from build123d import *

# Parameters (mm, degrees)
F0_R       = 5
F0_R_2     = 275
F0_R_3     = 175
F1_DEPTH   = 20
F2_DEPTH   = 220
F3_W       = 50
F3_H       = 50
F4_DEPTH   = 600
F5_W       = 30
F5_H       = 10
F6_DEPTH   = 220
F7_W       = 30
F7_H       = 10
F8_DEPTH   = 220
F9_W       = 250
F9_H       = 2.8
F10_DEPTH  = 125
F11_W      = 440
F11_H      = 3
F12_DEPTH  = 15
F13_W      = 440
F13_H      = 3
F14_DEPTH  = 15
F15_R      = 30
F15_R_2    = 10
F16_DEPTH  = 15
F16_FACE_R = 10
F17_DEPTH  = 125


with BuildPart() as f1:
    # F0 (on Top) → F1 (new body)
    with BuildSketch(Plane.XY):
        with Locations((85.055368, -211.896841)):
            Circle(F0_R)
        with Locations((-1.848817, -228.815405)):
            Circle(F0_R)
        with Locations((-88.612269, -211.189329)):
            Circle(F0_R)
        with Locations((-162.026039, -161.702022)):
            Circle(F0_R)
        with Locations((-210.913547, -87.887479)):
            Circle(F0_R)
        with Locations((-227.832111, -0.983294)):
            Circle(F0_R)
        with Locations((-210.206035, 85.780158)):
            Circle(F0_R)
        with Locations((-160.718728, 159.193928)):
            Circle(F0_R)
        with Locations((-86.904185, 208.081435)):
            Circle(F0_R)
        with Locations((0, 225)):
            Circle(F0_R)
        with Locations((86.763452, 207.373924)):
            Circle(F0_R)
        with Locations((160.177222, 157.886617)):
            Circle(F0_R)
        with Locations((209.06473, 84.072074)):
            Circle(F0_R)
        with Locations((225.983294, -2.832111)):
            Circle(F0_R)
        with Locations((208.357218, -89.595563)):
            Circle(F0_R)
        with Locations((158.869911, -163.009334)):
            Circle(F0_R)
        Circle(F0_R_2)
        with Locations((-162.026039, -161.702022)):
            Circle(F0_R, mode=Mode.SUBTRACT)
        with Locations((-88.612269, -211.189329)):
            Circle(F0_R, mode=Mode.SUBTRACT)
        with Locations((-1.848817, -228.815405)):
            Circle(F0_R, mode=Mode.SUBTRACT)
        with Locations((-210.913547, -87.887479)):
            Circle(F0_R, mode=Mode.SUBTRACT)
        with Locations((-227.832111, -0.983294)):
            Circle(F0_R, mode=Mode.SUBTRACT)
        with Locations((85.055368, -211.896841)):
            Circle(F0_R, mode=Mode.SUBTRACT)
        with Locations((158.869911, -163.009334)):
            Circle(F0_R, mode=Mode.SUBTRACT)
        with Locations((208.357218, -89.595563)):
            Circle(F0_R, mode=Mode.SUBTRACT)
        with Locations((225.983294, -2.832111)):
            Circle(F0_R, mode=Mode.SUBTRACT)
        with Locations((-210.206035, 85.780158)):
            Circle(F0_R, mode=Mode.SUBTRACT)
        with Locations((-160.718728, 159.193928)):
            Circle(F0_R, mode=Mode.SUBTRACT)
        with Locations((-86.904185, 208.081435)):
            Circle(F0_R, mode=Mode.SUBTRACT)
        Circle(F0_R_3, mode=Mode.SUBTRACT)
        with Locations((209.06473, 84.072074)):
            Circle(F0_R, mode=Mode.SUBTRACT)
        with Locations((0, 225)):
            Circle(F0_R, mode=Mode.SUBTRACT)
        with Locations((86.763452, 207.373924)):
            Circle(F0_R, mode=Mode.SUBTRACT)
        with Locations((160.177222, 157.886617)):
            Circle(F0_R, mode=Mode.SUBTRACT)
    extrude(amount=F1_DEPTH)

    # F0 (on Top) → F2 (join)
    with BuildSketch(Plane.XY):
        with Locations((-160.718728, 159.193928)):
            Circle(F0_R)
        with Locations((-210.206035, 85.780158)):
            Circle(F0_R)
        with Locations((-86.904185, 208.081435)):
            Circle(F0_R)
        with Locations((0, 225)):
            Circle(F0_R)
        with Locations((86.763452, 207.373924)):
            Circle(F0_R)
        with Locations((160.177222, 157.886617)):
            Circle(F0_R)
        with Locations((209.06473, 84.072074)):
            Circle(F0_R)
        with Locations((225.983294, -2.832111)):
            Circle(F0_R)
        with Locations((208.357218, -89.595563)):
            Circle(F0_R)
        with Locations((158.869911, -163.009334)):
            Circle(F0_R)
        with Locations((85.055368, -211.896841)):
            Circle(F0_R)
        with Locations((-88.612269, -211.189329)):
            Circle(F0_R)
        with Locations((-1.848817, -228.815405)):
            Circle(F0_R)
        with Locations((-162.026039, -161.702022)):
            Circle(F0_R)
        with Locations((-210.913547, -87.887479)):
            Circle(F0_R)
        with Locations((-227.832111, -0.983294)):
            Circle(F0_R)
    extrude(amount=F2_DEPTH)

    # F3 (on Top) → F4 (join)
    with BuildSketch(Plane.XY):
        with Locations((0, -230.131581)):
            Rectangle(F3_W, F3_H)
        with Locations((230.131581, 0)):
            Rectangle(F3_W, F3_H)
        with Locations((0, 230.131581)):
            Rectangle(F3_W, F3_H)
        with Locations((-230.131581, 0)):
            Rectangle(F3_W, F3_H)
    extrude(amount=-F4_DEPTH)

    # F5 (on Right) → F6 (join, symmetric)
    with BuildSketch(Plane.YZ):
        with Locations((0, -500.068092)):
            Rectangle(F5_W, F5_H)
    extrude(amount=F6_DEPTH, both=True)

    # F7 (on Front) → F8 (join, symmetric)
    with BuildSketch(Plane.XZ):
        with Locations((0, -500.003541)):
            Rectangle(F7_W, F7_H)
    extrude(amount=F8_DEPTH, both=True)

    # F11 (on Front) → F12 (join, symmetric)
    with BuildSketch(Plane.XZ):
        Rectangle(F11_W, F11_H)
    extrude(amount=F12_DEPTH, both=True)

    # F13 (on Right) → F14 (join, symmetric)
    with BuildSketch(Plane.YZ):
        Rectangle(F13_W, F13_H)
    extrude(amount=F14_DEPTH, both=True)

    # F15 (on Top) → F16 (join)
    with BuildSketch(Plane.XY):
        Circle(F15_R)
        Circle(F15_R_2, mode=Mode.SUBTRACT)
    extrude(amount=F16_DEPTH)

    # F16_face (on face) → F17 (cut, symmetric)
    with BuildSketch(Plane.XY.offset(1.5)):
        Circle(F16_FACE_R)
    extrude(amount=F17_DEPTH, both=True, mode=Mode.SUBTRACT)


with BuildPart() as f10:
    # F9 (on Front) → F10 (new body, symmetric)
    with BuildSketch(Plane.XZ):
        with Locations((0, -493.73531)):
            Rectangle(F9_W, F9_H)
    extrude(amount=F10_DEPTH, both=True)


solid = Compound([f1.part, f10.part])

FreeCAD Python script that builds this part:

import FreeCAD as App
import Part
import Sketcher

V = App.Vector

doc = App.newDocument("Part")
params = doc.addObject("Spreadsheet::Sheet", "Params")
for row, (alias, value) in enumerate([
    ("sketch1_diameter", "550 mm"),
    ("sketch1_diameter2", "10 mm"),
    ("sketch1_diameter3", "350 mm"),
    ("pad1_length", "20 mm"),
    ("sketch2_diameter", "10 mm"),
    ("pad2_length", "220 mm"),
    ("sketch3_width", "50 mm"),
    ("pad3_length", "600 mm"),
    ("sketch4_width", "30 mm"),
    ("sketch4_height", "10 mm"),
    ("pad4_length", "440 mm"),
    ("sketch5_width", "30 mm"),
    ("sketch5_height", "10 mm"),
    ("pad5_length", "440 mm"),
    ("sketch6_width", "440 mm"),
    ("sketch6_height", "3 mm"),
    ("pad6_length", "30 mm"),
    ("sketch7_width", "440 mm"),
    ("sketch7_height", "3 mm"),
    ("pad7_length", "30 mm"),
    ("sketch8_diameter", "60 mm"),
    ("sketch8_diameter2", "20 mm"),
    ("pad8_length", "15 mm"),
    ("sketch9_diameter", "20 mm"),
    ("pocket1_length", "250 mm"),
    ("sketch10_width", "250 mm"),
    ("sketch10_height", "2.8 mm"),
    ("pad9_length", "250 mm"),
], start=1):
    params.set(f"A{row}", alias)
    params.set(f"B{row}", "=" + value)
    params.setAlias(f"B{row}", alias)

body = doc.addObject("PartDesign::Body", "Body")

sketch1 = body.newObject("Sketcher::SketchObject", "Sketch")
sketch1.AttachmentSupport = (doc.getObject("XY_Plane"), [""])
sketch1.MapMode = "FlatFace"
sketch1.addGeometry([
    Part.Circle(V(0, 0, 0), V(0, 0, 1), 275),
    Part.Circle(V(-162, -162, 0), V(0, 0, 1), 5),
    Part.Circle(V(-89, -211, 0), V(0, 0, 1), 5),
    Part.Circle(V(-2, -229, 0), V(0, 0, 1), 5),
    Part.Circle(V(-211, -88, 0), V(0, 0, 1), 5),
    Part.Circle(V(85, -212, 0), V(0, 0, 1), 5),
    Part.Circle(V(159, -163, 0), V(0, 0, 1), 5),
    Part.Circle(V(208, -90, 0), V(0, 0, 1), 5),
    Part.Circle(V(226, -3, 0), V(0, 0, 1), 5),
    Part.Circle(V(-228, -1, 0), V(0, 0, 1), 5),
    Part.Circle(V(-210, 86, 0), V(0, 0, 1), 5),
    Part.Circle(V(-161, 159, 0), V(0, 0, 1), 5),
    Part.Circle(V(-87, 208, 0), V(0, 0, 1), 5),
    Part.Circle(V(0, 0, 0), V(0, 0, 1), 175),
    Part.Circle(V(209, 84, 0), V(0, 0, 1), 5),
    Part.Circle(V(0, 225, 0), V(0, 0, 1), 5),
    Part.Circle(V(87, 207, 0), V(0, 0, 1), 5),
    Part.Circle(V(160, 158, 0), V(0, 0, 1), 5),
], False)
sketch1.addConstraint([
    Sketcher.Constraint("Coincident", 0, 3, -1, 1),
    Sketcher.Constraint("Coincident", 13, 3, -1, 1),
    Sketcher.Constraint("Equal", 1, 2),
    Sketcher.Constraint("Equal", 2, 3),
    Sketcher.Constraint("Equal", 3, 4),
    Sketcher.Constraint("Equal", 4, 5),
    Sketcher.Constraint("Equal", 5, 6),
    Sketcher.Constraint("Equal", 6, 7),
    Sketcher.Constraint("Equal", 7, 8),
    Sketcher.Constraint("Equal", 8, 9),
    Sketcher.Constraint("Equal", 9, 10),
    Sketcher.Constraint("Equal", 10, 11),
    Sketcher.Constraint("Equal", 11, 12),
    Sketcher.Constraint("Equal", 12, 14),
    Sketcher.Constraint("Equal", 14, 15),
    Sketcher.Constraint("Equal", 15, 16),
    Sketcher.Constraint("Equal", 16, 17),
    Sketcher.Constraint("PointOnObject", 15, 3, -2),
    Sketcher.Constraint("Diameter", 0, 550.0),
    Sketcher.Constraint("Diameter", 1, 10.0),
    Sketcher.Constraint("Diameter", 13, 350.0),
    Sketcher.Constraint("DistanceY", -1, 1, 15, 3, 225.0),
    Sketcher.Constraint("DistanceX", 1, 3, -1, 1, 162.026039),
    Sketcher.Constraint("DistanceY", 1, 3, -1, 1, 161.702022),
    Sketcher.Constraint("DistanceX", 2, 3, -1, 1, 88.612269),
    Sketcher.Constraint("DistanceY", 2, 3, -1, 1, 211.189329),
    Sketcher.Constraint("DistanceY", 4, 3, -1, 1, 87.887479),
    Sketcher.Constraint("DistanceX", -1, 1, 5, 3, 85.055368),
    Sketcher.Constraint("DistanceY", 5, 3, -1, 1, 211.896841),
    Sketcher.Constraint("DistanceX", -1, 1, 6, 3, 158.869911),
    Sketcher.Constraint("DistanceY", 8, 3, -1, 1, 2.832111),
    Sketcher.Constraint("DistanceX", 9, 3, -1, 1, 227.832111),
    Sketcher.Constraint("DistanceY", -1, 1, 10, 3, 85.780158),
    Sketcher.Constraint("DistanceX", 11, 3, -1, 1, 160.718728),
    Sketcher.Constraint("DistanceY", -1, 1, 11, 3, 159.193928),
    Sketcher.Constraint("DistanceX", -1, 1, 14, 3, 209.06473),
    Sketcher.Constraint("DistanceX", -1, 1, 16, 3, 86.763452),
    Sketcher.Constraint("DistanceX", -1, 1, 17, 3, 160.177222),
    Sketcher.Constraint("DistanceX", 2, 3, 3, 3, 86.763452),
    Sketcher.Constraint("DistanceX", 4, 3, 3, 3, 209.06473),
    Sketcher.Constraint("DistanceY", 3, 3, 6, 3, 65.806071),
    Sketcher.Constraint("DistanceY", 6, 3, 1, 3, 1.307312),
    Sketcher.Constraint("DistanceY", 6, 3, 7, 3, 73.413771),
    Sketcher.Constraint("DistanceX", 5, 3, 7, 3, 123.30185),
    Sketcher.Constraint("DistanceX", 3, 3, 8, 3, 227.832111),
    Sketcher.Constraint("DistanceY", 1, 3, 9, 3, 160.718728),
    Sketcher.Constraint("DistanceX", 4, 3, 10, 3, 0.707512),
    Sketcher.Constraint("DistanceX", 10, 3, 12, 3, 123.30185),
    Sketcher.Constraint("DistanceY", 9, 3, 12, 3, 209.064729),
    Sketcher.Constraint("DistanceY", 6, 3, 14, 3, 247.081408),
    Sketcher.Constraint("DistanceY", 16, 3, 12, 3, 0.707511),
    Sketcher.Constraint("DistanceY", 8, 3, 17, 3, 160.718728),
])
sketch1.setExpression("Constraints[18]", "Params.sketch1_diameter")
sketch1.setExpression("Constraints[19]", "Params.sketch1_diameter2")
sketch1.setExpression("Constraints[20]", "Params.sketch1_diameter3")
pad1 = body.newObject("PartDesign::Pad", "Pad")
pad1.Profile = sketch1
pad1.setExpression("Length", "Params.pad1_length")

sketch2 = body.newObject("Sketcher::SketchObject", "Sketch001")
sketch2.AttachmentSupport = (doc.getObject("XY_Plane"), [""])
sketch2.MapMode = "FlatFace"
sketch2.addGeometry([
    Part.Circle(V(-161, 159, 0), V(0, 0, 1), 5),
    Part.Circle(V(-210, 86, 0), V(0, 0, 1), 5),
    Part.Circle(V(-87, 208, 0), V(0, 0, 1), 5),
    Part.Circle(V(0, 225, 0), V(0, 0, 1), 5),
    Part.Circle(V(87, 207, 0), V(0, 0, 1), 5),
    Part.Circle(V(160, 158, 0), V(0, 0, 1), 5),
    Part.Circle(V(209, 84, 0), V(0, 0, 1), 5),
    Part.Circle(V(226, -3, 0), V(0, 0, 1), 5),
    Part.Circle(V(208, -90, 0), V(0, 0, 1), 5),
    Part.Circle(V(159, -163, 0), V(0, 0, 1), 5),
    Part.Circle(V(85, -212, 0), V(0, 0, 1), 5),
    Part.Circle(V(-89, -211, 0), V(0, 0, 1), 5),
    Part.Circle(V(-2, -229, 0), V(0, 0, 1), 5),
    Part.Circle(V(-162, -162, 0), V(0, 0, 1), 5),
    Part.Circle(V(-211, -88, 0), V(0, 0, 1), 5),
    Part.Circle(V(-228, -1, 0), V(0, 0, 1), 5),
], False)
sketch2.addConstraint([
    Sketcher.Constraint("Equal", 0, 1),
    Sketcher.Constraint("Equal", 1, 2),
    Sketcher.Constraint("Equal", 2, 3),
    Sketcher.Constraint("Equal", 3, 4),
    Sketcher.Constraint("Equal", 4, 5),
    Sketcher.Constraint("Equal", 5, 6),
    Sketcher.Constraint("Equal", 6, 7),
    Sketcher.Constraint("Equal", 7, 8),
    Sketcher.Constraint("Equal", 8, 9),
    Sketcher.Constraint("Equal", 9, 10),
    Sketcher.Constraint("Equal", 10, 11),
    Sketcher.Constraint("Equal", 11, 12),
    Sketcher.Constraint("Equal", 12, 13),
    Sketcher.Constraint("Equal", 13, 14),
    Sketcher.Constraint("Equal", 14, 15),
    Sketcher.Constraint("PointOnObject", 3, 3, -2),
    Sketcher.Constraint("Diameter", 0, 10.0),
    Sketcher.Constraint("DistanceY", -1, 1, 3, 3, 225.0),
    Sketcher.Constraint("DistanceX", 0, 3, -1, 1, 160.718728),
    Sketcher.Constraint("DistanceY", -1, 1, 0, 3, 159.193928),
    Sketcher.Constraint("DistanceY", -1, 1, 1, 3, 85.780158),
    Sketcher.Constraint("DistanceX", -1, 1, 4, 3, 86.763452),
    Sketcher.Constraint("DistanceX", -1, 1, 5, 3, 160.177222),
    Sketcher.Constraint("DistanceX", -1, 1, 6, 3, 209.06473),
    Sketcher.Constraint("DistanceY", 7, 3, -1, 1, 2.832111),
    Sketcher.Constraint("DistanceX", -1, 1, 9, 3, 158.869911),
    Sketcher.Constraint("DistanceX", -1, 1, 10, 3, 85.055368),
    Sketcher.Constraint("DistanceY", 10, 3, -1, 1, 211.896841),
    Sketcher.Constraint("DistanceX", 11, 3, -1, 1, 88.612269),
    Sketcher.Constraint("DistanceY", 11, 3, -1, 1, 211.189329),
    Sketcher.Constraint("DistanceX", 13, 3, -1, 1, 162.026039),
    Sketcher.Constraint("DistanceY", 13, 3, -1, 1, 161.702022),
    Sketcher.Constraint("DistanceY", 14, 3, -1, 1, 87.887479),
    Sketcher.Constraint("DistanceX", 15, 3, -1, 1, 227.832111),
    Sketcher.Constraint("DistanceX", 1, 3, 2, 3, 123.30185),
    Sketcher.Constraint("DistanceY", 4, 3, 2, 3, 0.707511),
    Sketcher.Constraint("DistanceY", 5, 3, 0, 3, 1.307311),
    Sketcher.Constraint("DistanceY", 6, 3, 4, 3, 123.30185),
    Sketcher.Constraint("DistanceX", 5, 3, 7, 3, 65.806072),
    Sketcher.Constraint("DistanceX", 2, 3, 7, 3, 312.887479),
    Sketcher.Constraint("DistanceY", 8, 3, 7, 3, 86.763452),
    Sketcher.Constraint("DistanceY", 9, 3, 8, 3, 73.413771),
    Sketcher.Constraint("DistanceY", 9, 3, 6, 3, 247.081408),
    Sketcher.Constraint("DistanceX", 10, 3, 8, 3, 123.30185),
    Sketcher.Constraint("DistanceX", 11, 3, 12, 3, 86.763452),
    Sketcher.Constraint("DistanceY", 12, 3, 9, 3, 65.806071),
    Sketcher.Constraint("DistanceX", 14, 3, 1, 3, 0.707512),
    Sketcher.Constraint("DistanceY", 15, 3, 1, 3, 86.763452),
])
sketch2.setExpression("Constraints[16]", "Params.sketch2_diameter")
pad2 = body.newObject("PartDesign::Pad", "Pad001")
pad2.Profile = sketch2
pad2.setExpression("Length", "Params.pad2_length")

sketch3 = body.newObject("Sketcher::SketchObject", "Sketch002")
sketch3.AttachmentSupport = (doc.getObject("XY_Plane"), [""])
sketch3.MapMode = "FlatFace"
sketch3.addGeometry([
    Part.LineSegment(V(-25, -205, 0), V(-25, -255, 0)),
    Part.LineSegment(V(-25, -255, 0), V(25, -255, 0)),
    Part.LineSegment(V(25, -255, 0), V(25, -205, 0)),
    Part.LineSegment(V(25, -205, 0), V(-25, -205, 0)),
    Part.LineSegment(V(205, 25, 0), V(205, -25, 0)),
    Part.LineSegment(V(205, -25, 0), V(255, -25, 0)),
    Part.LineSegment(V(255, -25, 0), V(255, 25, 0)),
    Part.LineSegment(V(255, 25, 0), V(205, 25, 0)),
    Part.LineSegment(V(-25, 255, 0), V(-25, 205, 0)),
    Part.LineSegment(V(-25, 205, 0), V(25, 205, 0)),
    Part.LineSegment(V(25, 205, 0), V(25, 255, 0)),
    Part.LineSegment(V(25, 255, 0), V(-25, 255, 0)),
    Part.LineSegment(V(-255, 25, 0), V(-255, -25, 0)),
    Part.LineSegment(V(-255, -25, 0), V(-205, -25, 0)),
    Part.LineSegment(V(-205, -25, 0), V(-205, 25, 0)),
    Part.LineSegment(V(-205, 25, 0), V(-255, 25, 0)),
], False)
sketch3.addConstraint([
    Sketcher.Constraint("Coincident", 0, 2, 1, 1),
    Sketcher.Constraint("Coincident", 1, 2, 2, 1),
    Sketcher.Constraint("Coincident", 2, 2, 3, 1),
    Sketcher.Constraint("Coincident", 3, 2, 0, 1),
    Sketcher.Constraint("Coincident", 4, 2, 5, 1),
    Sketcher.Constraint("Coincident", 5, 2, 6, 1),
    Sketcher.Constraint("Coincident", 6, 2, 7, 1),
    Sketcher.Constraint("Coincident", 7, 2, 4, 1),
    Sketcher.Constraint("Coincident", 8, 2, 9, 1),
    Sketcher.Constraint("Coincident", 9, 2, 10, 1),
    Sketcher.Constraint("Coincident", 10, 2, 11, 1),
    Sketcher.Constraint("Coincident", 11, 2, 8, 1),
    Sketcher.Constraint("Coincident", 12, 2, 13, 1),
    Sketcher.Constraint("Coincident", 13, 2, 14, 1),
    Sketcher.Constraint("Coincident", 14, 2, 15, 1),
    Sketcher.Constraint("Coincident", 15, 2, 12, 1),
    Sketcher.Constraint("Vertical", 0),
    Sketcher.Constraint("Horizontal", 1),
    Sketcher.Constraint("Vertical", 2),
    Sketcher.Constraint("Horizontal", 3),
    Sketcher.Constraint("Vertical", 4),
    Sketcher.Constraint("Horizontal", 5),
    Sketcher.Constraint("Vertical", 6),
    Sketcher.Constraint("Horizontal", 7),
    Sketcher.Constraint("Vertical", 8),
    Sketcher.Constraint("Horizontal", 9),
    Sketcher.Constraint("Vertical", 10),
    Sketcher.Constraint("Horizontal", 11),
    Sketcher.Constraint("Vertical", 12),
    Sketcher.Constraint("Horizontal", 13),
    Sketcher.Constraint("Vertical", 14),
    Sketcher.Constraint("Horizontal", 15),
    Sketcher.Constraint("Symmetric", 2, 2, 8, 2, -1, 1),
    Sketcher.Constraint("Symmetric", 0, 2, 10, 2, -1, 1),
    Sketcher.Constraint("Symmetric", 6, 2, 12, 2, -1, 1),
    Sketcher.Constraint("Symmetric", 4, 2, 14, 2, -1, 1),
    Sketcher.Constraint("Horizontal", 5, 2, 12, 2),
    Sketcher.Constraint("Vertical", 3, 2, 8, 2),
    Sketcher.Constraint("Equal", 3, 5),
    Sketcher.Constraint("Equal", 15, 0),
    Sketcher.Constraint("Equal", 2, 4),
    Sketcher.Constraint("DistanceX", 1, 1, 1, 2, 50.0),
    Sketcher.Constraint("DistanceY", 0, 2, -1, 1, 255.131581),
    Sketcher.Constraint("DistanceX", -1, 1, 4, 2, 205.131581),
])
sketch3.setExpression("Constraints[41]", "Params.sketch3_width")
pad3 = body.newObject("PartDesign::Pad", "Pad002")
pad3.Profile = sketch3
pad3.setExpression("Length", "Params.pad3_length")
pad3.Reversed = True

sketch4 = body.newObject("Sketcher::SketchObject", "Sketch003")
sketch4.AttachmentSupport = (doc.getObject("YZ_Plane"), [""])
sketch4.MapMode = "FlatFace"
sketch4.addGeometry([
    Part.LineSegment(V(-15, -495, 0), V(-15, -505, 0)),
    Part.LineSegment(V(-15, -505, 0), V(15, -505, 0)),
    Part.LineSegment(V(15, -505, 0), V(15, -495, 0)),
    Part.LineSegment(V(15, -495, 0), V(-15, -495, 0)),
], False)
sketch4.addConstraint([
    Sketcher.Constraint("Coincident", 0, 2, 1, 1),
    Sketcher.Constraint("Coincident", 1, 2, 2, 1),
    Sketcher.Constraint("Coincident", 2, 2, 3, 1),
    Sketcher.Constraint("Coincident", 3, 2, 0, 1),
    Sketcher.Constraint("Vertical", 0),
    Sketcher.Constraint("Horizontal", 1),
    Sketcher.Constraint("Vertical", 2),
    Sketcher.Constraint("Horizontal", 3),
    Sketcher.Constraint("DistanceX", 1, 1, 1, 2, 30.0),
    Sketcher.Constraint("DistanceY", 0, 2, 0, 1, 10.0),
    Sketcher.Constraint("DistanceX", 0, 2, -1, 1, 15.0),
    Sketcher.Constraint("DistanceY", 0, 2, -1, 1, 505.068092),
])
sketch4.setExpression("Constraints[8]", "Params.sketch4_width")
sketch4.setExpression("Constraints[9]", "Params.sketch4_height")
pad4 = body.newObject("PartDesign::Pad", "Pad003")
pad4.Profile = sketch4
pad4.setExpression("Length", "Params.pad4_length")
pad4.Midplane = True

sketch5 = body.newObject("Sketcher::SketchObject", "Sketch004")
sketch5.AttachmentSupport = (doc.getObject("XZ_Plane"), [""])
sketch5.MapMode = "FlatFace"
sketch5.addGeometry([
    Part.LineSegment(V(-15, -495, 0), V(-15, -505, 0)),
    Part.LineSegment(V(-15, -505, 0), V(15, -505, 0)),
    Part.LineSegment(V(15, -505, 0), V(15, -495, 0)),
    Part.LineSegment(V(15, -495, 0), V(-15, -495, 0)),
], False)
sketch5.addConstraint([
    Sketcher.Constraint("Coincident", 0, 2, 1, 1),
    Sketcher.Constraint("Coincident", 1, 2, 2, 1),
    Sketcher.Constraint("Coincident", 2, 2, 3, 1),
    Sketcher.Constraint("Coincident", 3, 2, 0, 1),
    Sketcher.Constraint("Vertical", 0),
    Sketcher.Constraint("Horizontal", 1),
    Sketcher.Constraint("Vertical", 2),
    Sketcher.Constraint("Horizontal", 3),
    Sketcher.Constraint("DistanceX", 1, 1, 1, 2, 30.0),
    Sketcher.Constraint("DistanceY", 0, 2, 0, 1, 10.0),
    Sketcher.Constraint("DistanceX", 0, 2, -1, 1, 15.0),
    Sketcher.Constraint("DistanceY", 0, 2, -1, 1, 505.003541),
])
sketch5.setExpression("Constraints[8]", "Params.sketch5_width")
sketch5.setExpression("Constraints[9]", "Params.sketch5_height")
pad5 = body.newObject("PartDesign::Pad", "Pad004")
pad5.Profile = sketch5
pad5.setExpression("Length", "Params.pad5_length")
pad5.Midplane = True

sketch6 = body.newObject("Sketcher::SketchObject", "Sketch005")
sketch6.AttachmentSupport = (doc.getObject("XZ_Plane"), [""])
sketch6.MapMode = "FlatFace"
sketch6.addGeometry([
    Part.LineSegment(V(-220, 1.5, 0), V(-220, -1.5, 0)),
    Part.LineSegment(V(-220, -1.5, 0), V(220, -1.5, 0)),
    Part.LineSegment(V(220, -1.5, 0), V(220, 1.5, 0)),
    Part.LineSegment(V(220, 1.5, 0), V(-220, 1.5, 0)),
], False)
sketch6.addConstraint([
    Sketcher.Constraint("Coincident", 0, 2, 1, 1),
    Sketcher.Constraint("Coincident", 1, 2, 2, 1),
    Sketcher.Constraint("Coincident", 2, 2, 3, 1),
    Sketcher.Constraint("Coincident", 3, 2, 0, 1),
    Sketcher.Constraint("Vertical", 0),
    Sketcher.Constraint("Horizontal", 1),
    Sketcher.Constraint("Vertical", 2),
    Sketcher.Constraint("Horizontal", 3),
    Sketcher.Constraint("Symmetric", 0, 2, 2, 2, -1, 1),
    Sketcher.Constraint("DistanceX", 1, 1, 1, 2, 440.0),
    Sketcher.Constraint("DistanceY", 0, 2, 0, 1, 3.0),
])
sketch6.setExpression("Constraints[9]", "Params.sketch6_width")
sketch6.setExpression("Constraints[10]", "Params.sketch6_height")
pad6 = body.newObject("PartDesign::Pad", "Pad005")
pad6.Profile = sketch6
pad6.setExpression("Length", "Params.pad6_length")
pad6.Midplane = True

sketch7 = body.newObject("Sketcher::SketchObject", "Sketch006")
sketch7.AttachmentSupport = (doc.getObject("YZ_Plane"), [""])
sketch7.MapMode = "FlatFace"
sketch7.addGeometry([
    Part.LineSegment(V(-220, 1.5, 0), V(-220, -1.5, 0)),
    Part.LineSegment(V(-220, -1.5, 0), V(220, -1.5, 0)),
    Part.LineSegment(V(220, -1.5, 0), V(220, 1.5, 0)),
    Part.LineSegment(V(220, 1.5, 0), V(-220, 1.5, 0)),
], False)
sketch7.addConstraint([
    Sketcher.Constraint("Coincident", 0, 2, 1, 1),
    Sketcher.Constraint("Coincident", 1, 2, 2, 1),
    Sketcher.Constraint("Coincident", 2, 2, 3, 1),
    Sketcher.Constraint("Coincident", 3, 2, 0, 1),
    Sketcher.Constraint("Vertical", 0),
    Sketcher.Constraint("Horizontal", 1),
    Sketcher.Constraint("Vertical", 2),
    Sketcher.Constraint("Horizontal", 3),
    Sketcher.Constraint("Symmetric", 0, 2, 2, 2, -1, 1),
    Sketcher.Constraint("DistanceX", 1, 1, 1, 2, 440.0),
    Sketcher.Constraint("DistanceY", 0, 2, 0, 1, 3.0),
])
sketch7.setExpression("Constraints[9]", "Params.sketch7_width")
sketch7.setExpression("Constraints[10]", "Params.sketch7_height")
pad7 = body.newObject("PartDesign::Pad", "Pad006")
pad7.Profile = sketch7
pad7.setExpression("Length", "Params.pad7_length")
pad7.Midplane = True

sketch8 = body.newObject("Sketcher::SketchObject", "Sketch007")
sketch8.AttachmentSupport = (doc.getObject("XY_Plane"), [""])
sketch8.MapMode = "FlatFace"
sketch8.addGeometry([
    Part.Circle(V(0, 0, 0), V(0, 0, 1), 30),
    Part.Circle(V(0, 0, 0), V(0, 0, 1), 10),
], False)
sketch8.addConstraint([
    Sketcher.Constraint("Coincident", 0, 3, -1, 1),
    Sketcher.Constraint("Coincident", 1, 3, -1, 1),
    Sketcher.Constraint("Diameter", 0, 60.0),
    Sketcher.Constraint("Diameter", 1, 20.0),
])
sketch8.setExpression("Constraints[2]", "Params.sketch8_diameter")
sketch8.setExpression("Constraints[3]", "Params.sketch8_diameter2")
pad8 = body.newObject("PartDesign::Pad", "Pad007")
pad8.Profile = sketch8
pad8.setExpression("Length", "Params.pad8_length")

sketch9 = body.newObject("Sketcher::SketchObject", "Sketch008")
sketch9.AttachmentSupport = (doc.getObject("XY_Plane"), [""])
sketch9.MapMode = "FlatFace"
sketch9.AttachmentOffset = App.Placement(V(0, 0, 1.5), App.Rotation())
sketch9.addGeometry(Part.Circle(V(0, 0, 0), V(0, 0, 1), 10), False)
sketch9.addConstraint([
    Sketcher.Constraint("Coincident", 0, 3, -1, 1),
    Sketcher.Constraint("Diameter", 0, 20.0),
])
sketch9.setExpression("Constraints[1]", "Params.sketch9_diameter")
pocket1 = body.newObject("PartDesign::Pocket", "Pocket")
pocket1.Profile = sketch9
pocket1.setExpression("Length", "Params.pocket1_length")
pocket1.Midplane = True
body2 = doc.addObject("PartDesign::Body", "Body001")

sketch10 = body2.newObject("Sketcher::SketchObject", "Sketch009")
sketch10.AttachmentSupport = (doc.getObject("XZ_Plane001"), [""])
sketch10.MapMode = "FlatFace"
sketch10.addGeometry([
    Part.LineSegment(V(-125, -492.3, 0), V(-125, -495.1, 0)),
    Part.LineSegment(V(-125, -495.1, 0), V(125, -495.1, 0)),
    Part.LineSegment(V(125, -495.1, 0), V(125, -492.3, 0)),
    Part.LineSegment(V(125, -492.3, 0), V(-125, -492.3, 0)),
], False)
sketch10.addConstraint([
    Sketcher.Constraint("Coincident", 0, 2, 1, 1),
    Sketcher.Constraint("Coincident", 1, 2, 2, 1),
    Sketcher.Constraint("Coincident", 2, 2, 3, 1),
    Sketcher.Constraint("Coincident", 3, 2, 0, 1),
    Sketcher.Constraint("Vertical", 0),
    Sketcher.Constraint("Horizontal", 1),
    Sketcher.Constraint("Vertical", 2),
    Sketcher.Constraint("Horizontal", 3),
    Sketcher.Constraint("DistanceX", 1, 1, 1, 2, 250.0),
    Sketcher.Constraint("DistanceY", 0, 2, 0, 1, 2.8),
    Sketcher.Constraint("DistanceX", 0, 2, -1, 1, 125.0),
    Sketcher.Constraint("DistanceY", 0, 2, -1, 1, 495.13531),
])
sketch10.setExpression("Constraints[8]", "Params.sketch10_width")
sketch10.setExpression("Constraints[9]", "Params.sketch10_height")
pad9 = body2.newObject("PartDesign::Pad", "Pad008")
pad9.Profile = sketch10
pad9.setExpression("Length", "Params.pad9_length")
pad9.Midplane = True

doc.recompute()
